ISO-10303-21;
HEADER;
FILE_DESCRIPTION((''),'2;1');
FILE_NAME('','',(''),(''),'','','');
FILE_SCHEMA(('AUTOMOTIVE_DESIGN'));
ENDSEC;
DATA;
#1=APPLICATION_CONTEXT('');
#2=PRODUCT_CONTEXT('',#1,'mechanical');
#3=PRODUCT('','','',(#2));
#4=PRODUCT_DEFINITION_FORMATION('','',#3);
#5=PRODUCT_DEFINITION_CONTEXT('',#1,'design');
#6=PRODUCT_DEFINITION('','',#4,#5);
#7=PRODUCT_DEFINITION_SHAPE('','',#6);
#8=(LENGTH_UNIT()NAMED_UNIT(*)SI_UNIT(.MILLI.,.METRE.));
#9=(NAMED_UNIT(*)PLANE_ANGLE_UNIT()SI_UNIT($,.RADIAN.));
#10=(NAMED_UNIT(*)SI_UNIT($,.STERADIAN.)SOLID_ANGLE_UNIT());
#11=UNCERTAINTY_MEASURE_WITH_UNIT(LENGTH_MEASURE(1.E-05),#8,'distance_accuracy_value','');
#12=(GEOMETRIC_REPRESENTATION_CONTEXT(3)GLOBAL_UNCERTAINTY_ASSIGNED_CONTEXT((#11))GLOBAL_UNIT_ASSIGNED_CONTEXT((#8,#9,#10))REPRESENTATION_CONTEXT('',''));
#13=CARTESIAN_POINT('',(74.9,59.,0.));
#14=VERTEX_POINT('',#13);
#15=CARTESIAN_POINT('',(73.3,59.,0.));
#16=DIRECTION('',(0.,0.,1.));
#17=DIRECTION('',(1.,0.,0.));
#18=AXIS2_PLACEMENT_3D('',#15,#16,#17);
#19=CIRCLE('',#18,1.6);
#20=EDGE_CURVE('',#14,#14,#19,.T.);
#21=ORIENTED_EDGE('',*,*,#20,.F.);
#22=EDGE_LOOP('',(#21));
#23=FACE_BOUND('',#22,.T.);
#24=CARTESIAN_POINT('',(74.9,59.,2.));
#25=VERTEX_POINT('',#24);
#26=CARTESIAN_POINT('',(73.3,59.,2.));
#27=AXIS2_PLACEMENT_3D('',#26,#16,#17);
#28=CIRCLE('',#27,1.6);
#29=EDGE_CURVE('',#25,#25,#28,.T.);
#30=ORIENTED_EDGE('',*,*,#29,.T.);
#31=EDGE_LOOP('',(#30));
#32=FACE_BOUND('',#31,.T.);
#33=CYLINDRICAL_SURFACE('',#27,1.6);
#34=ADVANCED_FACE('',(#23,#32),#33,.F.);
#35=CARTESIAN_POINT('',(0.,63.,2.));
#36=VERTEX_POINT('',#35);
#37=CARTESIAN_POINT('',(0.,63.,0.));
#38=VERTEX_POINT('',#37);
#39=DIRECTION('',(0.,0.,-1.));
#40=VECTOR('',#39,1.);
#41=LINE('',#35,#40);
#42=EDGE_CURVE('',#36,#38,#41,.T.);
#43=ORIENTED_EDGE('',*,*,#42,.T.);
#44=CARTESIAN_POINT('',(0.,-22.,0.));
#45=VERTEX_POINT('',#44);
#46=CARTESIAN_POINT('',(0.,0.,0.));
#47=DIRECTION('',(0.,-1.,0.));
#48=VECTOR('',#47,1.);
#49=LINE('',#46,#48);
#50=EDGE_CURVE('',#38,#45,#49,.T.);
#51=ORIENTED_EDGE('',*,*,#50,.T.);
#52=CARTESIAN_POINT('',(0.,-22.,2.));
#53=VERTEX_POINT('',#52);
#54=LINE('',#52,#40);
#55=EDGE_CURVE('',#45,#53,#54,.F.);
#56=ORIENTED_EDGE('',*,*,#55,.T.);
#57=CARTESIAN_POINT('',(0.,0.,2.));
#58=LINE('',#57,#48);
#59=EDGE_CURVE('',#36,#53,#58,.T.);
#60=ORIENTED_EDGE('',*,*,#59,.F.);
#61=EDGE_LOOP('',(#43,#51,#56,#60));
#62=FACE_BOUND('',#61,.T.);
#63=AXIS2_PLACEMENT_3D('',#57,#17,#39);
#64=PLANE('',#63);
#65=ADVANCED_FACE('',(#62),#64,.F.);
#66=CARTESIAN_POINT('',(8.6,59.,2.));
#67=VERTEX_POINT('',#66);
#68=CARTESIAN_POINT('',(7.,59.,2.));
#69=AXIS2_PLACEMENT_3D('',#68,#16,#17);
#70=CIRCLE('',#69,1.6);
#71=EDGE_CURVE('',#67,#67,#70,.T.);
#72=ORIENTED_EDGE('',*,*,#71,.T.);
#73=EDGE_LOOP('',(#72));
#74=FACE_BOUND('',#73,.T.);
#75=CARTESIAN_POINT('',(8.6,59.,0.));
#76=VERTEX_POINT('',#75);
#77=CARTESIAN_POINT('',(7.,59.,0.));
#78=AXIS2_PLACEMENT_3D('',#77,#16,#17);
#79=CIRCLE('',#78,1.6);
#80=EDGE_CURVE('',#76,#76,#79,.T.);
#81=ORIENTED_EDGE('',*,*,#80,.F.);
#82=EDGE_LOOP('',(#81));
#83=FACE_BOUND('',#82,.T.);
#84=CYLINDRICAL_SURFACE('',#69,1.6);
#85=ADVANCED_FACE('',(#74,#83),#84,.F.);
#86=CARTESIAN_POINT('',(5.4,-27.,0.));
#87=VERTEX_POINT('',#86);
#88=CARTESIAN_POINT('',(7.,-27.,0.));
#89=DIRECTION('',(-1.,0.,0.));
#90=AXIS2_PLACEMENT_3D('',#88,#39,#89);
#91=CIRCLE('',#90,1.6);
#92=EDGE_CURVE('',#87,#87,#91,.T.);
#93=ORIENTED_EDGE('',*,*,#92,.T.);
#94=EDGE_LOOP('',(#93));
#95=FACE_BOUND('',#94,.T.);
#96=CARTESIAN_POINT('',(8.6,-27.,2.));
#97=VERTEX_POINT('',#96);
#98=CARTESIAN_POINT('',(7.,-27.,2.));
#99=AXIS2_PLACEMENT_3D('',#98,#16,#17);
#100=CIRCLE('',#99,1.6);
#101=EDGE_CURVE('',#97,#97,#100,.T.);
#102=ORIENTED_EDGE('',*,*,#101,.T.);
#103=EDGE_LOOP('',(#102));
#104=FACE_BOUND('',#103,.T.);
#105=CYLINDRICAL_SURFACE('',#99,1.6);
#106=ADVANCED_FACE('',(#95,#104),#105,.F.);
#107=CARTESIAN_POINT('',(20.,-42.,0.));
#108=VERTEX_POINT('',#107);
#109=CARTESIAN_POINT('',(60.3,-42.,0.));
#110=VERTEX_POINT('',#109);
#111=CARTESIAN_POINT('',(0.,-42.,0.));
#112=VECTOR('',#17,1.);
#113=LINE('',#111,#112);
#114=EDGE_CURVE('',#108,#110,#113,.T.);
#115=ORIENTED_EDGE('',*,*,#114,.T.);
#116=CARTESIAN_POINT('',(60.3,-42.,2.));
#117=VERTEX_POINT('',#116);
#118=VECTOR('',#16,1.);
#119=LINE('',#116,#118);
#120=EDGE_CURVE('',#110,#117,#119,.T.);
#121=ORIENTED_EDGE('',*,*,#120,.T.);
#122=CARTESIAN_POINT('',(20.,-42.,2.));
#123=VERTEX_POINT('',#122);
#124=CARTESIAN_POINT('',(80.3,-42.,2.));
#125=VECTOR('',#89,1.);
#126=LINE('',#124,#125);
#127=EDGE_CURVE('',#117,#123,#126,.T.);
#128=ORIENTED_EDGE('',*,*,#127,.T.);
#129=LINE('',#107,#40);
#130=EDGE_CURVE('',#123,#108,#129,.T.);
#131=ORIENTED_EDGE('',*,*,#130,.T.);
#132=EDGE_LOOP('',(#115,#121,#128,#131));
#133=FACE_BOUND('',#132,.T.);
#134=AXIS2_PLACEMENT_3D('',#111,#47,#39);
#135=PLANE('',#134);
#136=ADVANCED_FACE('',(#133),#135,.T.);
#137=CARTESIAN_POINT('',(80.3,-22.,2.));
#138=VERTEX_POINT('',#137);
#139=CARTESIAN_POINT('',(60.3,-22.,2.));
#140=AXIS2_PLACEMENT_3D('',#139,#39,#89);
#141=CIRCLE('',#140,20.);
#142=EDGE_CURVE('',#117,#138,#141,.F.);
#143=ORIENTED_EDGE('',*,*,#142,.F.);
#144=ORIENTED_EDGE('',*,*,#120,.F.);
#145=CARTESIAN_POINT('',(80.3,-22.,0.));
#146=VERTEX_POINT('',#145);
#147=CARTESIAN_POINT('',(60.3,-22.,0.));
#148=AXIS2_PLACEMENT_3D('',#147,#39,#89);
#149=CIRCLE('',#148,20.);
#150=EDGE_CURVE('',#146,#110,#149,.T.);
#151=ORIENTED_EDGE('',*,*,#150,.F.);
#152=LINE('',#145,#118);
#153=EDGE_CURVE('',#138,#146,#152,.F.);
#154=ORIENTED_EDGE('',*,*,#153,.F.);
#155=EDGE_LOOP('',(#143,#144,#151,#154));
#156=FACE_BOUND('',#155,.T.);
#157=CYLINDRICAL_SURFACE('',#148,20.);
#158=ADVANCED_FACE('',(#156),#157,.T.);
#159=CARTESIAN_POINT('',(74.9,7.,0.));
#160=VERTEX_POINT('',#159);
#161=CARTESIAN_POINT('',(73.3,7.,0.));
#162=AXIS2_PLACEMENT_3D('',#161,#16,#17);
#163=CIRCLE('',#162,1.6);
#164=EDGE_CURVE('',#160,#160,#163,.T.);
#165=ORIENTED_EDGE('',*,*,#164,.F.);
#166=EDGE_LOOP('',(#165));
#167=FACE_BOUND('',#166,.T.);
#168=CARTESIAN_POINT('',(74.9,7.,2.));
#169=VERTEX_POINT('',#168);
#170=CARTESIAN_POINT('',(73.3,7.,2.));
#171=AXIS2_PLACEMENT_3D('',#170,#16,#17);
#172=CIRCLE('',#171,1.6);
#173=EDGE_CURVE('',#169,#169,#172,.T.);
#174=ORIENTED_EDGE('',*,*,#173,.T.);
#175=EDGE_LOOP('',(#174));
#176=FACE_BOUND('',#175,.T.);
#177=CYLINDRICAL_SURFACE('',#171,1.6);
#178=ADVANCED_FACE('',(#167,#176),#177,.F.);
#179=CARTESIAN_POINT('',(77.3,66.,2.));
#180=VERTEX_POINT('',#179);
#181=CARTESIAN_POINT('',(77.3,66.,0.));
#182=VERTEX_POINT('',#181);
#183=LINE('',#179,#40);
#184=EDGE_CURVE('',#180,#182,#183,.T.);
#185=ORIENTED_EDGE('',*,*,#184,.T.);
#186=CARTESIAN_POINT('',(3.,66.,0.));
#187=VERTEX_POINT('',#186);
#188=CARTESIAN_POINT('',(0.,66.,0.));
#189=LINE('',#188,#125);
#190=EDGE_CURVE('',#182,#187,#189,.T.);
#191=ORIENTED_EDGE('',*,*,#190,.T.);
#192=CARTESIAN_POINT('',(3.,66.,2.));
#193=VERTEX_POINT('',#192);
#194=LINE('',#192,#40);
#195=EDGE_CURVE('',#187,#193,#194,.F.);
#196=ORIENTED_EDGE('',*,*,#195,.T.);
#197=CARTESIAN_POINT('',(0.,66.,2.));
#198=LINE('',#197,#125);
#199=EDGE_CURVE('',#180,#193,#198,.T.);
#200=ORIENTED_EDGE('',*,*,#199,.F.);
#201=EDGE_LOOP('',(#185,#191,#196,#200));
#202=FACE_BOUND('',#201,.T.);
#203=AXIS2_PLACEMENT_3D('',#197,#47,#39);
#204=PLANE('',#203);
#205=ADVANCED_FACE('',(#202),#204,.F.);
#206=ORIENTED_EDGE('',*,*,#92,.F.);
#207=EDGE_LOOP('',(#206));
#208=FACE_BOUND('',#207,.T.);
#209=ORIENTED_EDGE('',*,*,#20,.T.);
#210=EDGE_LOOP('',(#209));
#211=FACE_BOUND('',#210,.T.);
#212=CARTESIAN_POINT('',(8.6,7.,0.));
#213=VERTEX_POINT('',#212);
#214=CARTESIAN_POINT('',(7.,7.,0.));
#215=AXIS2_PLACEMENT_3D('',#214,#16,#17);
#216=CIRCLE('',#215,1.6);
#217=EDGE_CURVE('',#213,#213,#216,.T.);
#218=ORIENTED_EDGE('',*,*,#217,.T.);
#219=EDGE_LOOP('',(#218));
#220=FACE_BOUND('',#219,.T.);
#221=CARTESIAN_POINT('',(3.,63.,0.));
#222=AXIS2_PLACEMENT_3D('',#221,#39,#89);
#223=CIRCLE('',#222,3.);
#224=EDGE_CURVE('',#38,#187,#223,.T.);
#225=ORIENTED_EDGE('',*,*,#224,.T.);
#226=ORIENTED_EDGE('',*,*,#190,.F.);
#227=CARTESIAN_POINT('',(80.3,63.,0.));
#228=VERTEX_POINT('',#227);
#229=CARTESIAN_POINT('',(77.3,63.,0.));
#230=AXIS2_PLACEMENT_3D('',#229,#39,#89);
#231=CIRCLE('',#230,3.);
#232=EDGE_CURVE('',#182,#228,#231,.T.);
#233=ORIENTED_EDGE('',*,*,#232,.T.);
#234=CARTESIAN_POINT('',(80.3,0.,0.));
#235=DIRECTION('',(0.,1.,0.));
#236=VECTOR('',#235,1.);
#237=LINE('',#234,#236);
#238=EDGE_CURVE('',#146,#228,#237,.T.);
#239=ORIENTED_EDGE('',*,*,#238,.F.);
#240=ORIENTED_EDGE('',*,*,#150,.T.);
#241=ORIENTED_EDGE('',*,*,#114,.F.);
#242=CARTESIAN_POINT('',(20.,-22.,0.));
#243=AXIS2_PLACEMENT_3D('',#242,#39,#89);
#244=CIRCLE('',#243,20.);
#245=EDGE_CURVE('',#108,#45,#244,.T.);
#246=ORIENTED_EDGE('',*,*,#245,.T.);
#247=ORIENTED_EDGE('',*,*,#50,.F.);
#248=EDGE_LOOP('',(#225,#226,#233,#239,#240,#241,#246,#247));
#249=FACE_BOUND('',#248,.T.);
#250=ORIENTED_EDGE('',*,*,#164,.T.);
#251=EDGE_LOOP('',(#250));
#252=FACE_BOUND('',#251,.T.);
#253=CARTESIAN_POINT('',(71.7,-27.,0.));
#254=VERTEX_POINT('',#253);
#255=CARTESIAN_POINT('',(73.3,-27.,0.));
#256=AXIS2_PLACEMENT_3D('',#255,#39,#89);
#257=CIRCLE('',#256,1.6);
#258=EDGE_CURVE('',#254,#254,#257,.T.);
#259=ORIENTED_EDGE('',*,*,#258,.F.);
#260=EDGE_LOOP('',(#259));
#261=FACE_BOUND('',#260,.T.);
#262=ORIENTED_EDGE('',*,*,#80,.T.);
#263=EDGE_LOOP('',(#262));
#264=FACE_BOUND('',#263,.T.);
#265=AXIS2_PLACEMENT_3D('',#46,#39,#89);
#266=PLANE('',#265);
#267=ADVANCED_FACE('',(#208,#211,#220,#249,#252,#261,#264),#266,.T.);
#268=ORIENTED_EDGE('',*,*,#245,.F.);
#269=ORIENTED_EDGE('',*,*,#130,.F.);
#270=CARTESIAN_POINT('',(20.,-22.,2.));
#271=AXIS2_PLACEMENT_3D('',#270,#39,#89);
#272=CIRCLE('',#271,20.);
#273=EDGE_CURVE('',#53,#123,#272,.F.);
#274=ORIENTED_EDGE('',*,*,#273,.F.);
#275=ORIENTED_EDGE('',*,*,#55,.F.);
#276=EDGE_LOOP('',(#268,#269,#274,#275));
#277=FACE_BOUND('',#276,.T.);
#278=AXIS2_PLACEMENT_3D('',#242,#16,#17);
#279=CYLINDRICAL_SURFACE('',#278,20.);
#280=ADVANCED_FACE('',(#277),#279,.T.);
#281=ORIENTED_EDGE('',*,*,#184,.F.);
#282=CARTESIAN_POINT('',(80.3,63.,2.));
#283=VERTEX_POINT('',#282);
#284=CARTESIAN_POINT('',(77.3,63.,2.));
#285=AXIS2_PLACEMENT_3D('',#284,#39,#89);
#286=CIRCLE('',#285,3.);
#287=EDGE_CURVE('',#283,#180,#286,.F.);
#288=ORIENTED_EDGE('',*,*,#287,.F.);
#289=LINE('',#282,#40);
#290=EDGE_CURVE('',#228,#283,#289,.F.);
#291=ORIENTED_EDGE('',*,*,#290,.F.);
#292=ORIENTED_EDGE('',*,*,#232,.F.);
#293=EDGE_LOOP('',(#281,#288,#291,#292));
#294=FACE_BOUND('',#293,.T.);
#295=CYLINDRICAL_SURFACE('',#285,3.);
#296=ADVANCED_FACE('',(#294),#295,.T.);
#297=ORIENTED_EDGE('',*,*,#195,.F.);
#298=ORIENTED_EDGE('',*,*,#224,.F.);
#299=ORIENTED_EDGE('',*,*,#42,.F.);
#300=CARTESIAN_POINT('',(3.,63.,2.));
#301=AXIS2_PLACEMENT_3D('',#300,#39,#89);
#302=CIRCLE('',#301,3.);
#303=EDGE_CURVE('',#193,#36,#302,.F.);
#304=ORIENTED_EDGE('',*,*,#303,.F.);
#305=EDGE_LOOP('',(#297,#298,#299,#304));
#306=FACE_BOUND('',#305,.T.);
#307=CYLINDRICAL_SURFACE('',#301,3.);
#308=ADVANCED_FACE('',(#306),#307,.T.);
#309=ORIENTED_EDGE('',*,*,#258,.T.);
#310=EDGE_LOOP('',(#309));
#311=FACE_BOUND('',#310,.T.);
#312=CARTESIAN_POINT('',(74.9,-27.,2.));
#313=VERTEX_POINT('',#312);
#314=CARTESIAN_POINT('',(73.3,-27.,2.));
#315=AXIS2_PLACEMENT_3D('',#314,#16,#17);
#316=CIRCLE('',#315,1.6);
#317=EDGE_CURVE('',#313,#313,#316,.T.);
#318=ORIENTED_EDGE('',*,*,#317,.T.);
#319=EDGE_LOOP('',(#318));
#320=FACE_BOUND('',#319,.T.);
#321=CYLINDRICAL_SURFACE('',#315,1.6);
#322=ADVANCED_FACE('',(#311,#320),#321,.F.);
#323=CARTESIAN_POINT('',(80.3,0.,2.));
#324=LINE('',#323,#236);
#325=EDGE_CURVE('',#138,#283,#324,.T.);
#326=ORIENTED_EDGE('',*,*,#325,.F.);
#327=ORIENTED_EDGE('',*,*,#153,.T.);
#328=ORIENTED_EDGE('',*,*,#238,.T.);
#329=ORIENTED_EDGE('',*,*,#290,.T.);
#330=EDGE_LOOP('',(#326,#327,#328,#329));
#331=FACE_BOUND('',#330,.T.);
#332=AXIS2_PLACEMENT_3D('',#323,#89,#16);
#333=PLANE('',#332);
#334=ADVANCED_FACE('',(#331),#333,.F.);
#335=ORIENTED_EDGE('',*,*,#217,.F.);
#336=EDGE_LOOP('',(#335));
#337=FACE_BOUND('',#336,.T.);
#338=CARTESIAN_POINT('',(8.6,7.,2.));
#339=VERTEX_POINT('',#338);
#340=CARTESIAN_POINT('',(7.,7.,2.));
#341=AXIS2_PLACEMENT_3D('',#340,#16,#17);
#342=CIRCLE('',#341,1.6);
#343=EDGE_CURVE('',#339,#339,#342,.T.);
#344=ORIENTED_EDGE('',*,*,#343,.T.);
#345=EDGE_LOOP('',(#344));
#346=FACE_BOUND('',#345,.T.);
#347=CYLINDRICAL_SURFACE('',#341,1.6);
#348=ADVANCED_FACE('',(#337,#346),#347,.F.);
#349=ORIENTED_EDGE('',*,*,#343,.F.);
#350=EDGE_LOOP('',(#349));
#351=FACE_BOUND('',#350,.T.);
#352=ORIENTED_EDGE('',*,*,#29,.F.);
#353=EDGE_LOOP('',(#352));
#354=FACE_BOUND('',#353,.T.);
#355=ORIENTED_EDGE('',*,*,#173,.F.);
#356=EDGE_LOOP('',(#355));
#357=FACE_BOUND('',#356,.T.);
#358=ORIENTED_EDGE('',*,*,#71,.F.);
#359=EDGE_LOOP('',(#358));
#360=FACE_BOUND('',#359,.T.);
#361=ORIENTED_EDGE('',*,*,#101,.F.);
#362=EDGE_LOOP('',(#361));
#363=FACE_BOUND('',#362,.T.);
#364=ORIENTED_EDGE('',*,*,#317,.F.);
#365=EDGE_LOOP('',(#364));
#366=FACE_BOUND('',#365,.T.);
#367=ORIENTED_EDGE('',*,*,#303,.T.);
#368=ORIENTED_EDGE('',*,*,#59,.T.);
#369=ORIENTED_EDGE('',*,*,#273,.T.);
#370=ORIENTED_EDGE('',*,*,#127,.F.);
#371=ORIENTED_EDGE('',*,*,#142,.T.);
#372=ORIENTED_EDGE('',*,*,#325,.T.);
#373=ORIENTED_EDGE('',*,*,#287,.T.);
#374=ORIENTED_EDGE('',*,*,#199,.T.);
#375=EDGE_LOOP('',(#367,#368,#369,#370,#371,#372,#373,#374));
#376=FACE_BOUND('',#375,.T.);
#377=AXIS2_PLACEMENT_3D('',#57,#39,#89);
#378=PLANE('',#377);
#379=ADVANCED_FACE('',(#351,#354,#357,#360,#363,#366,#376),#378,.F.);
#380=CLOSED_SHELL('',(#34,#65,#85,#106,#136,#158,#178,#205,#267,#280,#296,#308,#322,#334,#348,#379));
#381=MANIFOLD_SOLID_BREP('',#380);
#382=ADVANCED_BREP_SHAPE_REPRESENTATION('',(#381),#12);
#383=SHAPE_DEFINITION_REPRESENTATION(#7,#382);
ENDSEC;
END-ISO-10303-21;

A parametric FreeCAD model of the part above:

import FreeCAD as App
import Part
import Sketcher
from FreeCAD import Vector
Q = App.Units.Quantity


def edges_at(feature, points):
    """Names of the edges that pass closest to the given points."""
    edges = feature.Shape.Edges
    near = lambda p: min(range(len(edges)), key=lambda i: edges[i].distToShape(Part.Vertex(*p))[0])
    return sorted({f"Edge{near(p) + 1}" for p in points})

doc = App.newDocument("Part")
body = doc.addObject("PartDesign::Body", "Body")

# Sketch on XY plane
sketch1 = doc.addObject("Sketcher::SketchObject", "Sketch")
body.addObject(sketch1)
sketch1.AttachmentSupport = (doc.XY_Plane, [""])
sketch1.MapMode = "FlatFace"
sketch1.addGeometry([
    Part.LineSegment(Vector(0, 66, 0), Vector(0, 0, 0)),
    Part.LineSegment(Vector(0, 0, 0), Vector(80, 0, 0)),
    Part.LineSegment(Vector(80, 0, 0), Vector(80, 66, 0)),
    Part.LineSegment(Vector(80, 66, 0), Vector(0, 66, 0)),
], False)
sketch1.addConstraint([
    Sketcher.Constraint("Coincident", 0, 2, 1, 1),
    Sketcher.Constraint("Coincident", 1, 2, 2, 1),
    Sketcher.Constraint("Coincident", 2, 2, 3, 1),
    Sketcher.Constraint("Coincident", 3, 2, 0, 1),
    Sketcher.Constraint("Vertical", 0),
    Sketcher.Constraint("Horizontal", 1),
    Sketcher.Constraint("Vertical", 2),
    Sketcher.Constraint("Horizontal", 3),
    Sketcher.Constraint("Coincident", 0, 2, -1, 1),
    Sketcher.Constraint("DistanceY", 0, 2, 0, 1, Q("66 mm")),
    Sketcher.Constraint("DistanceX", 1, 1, 1, 2, Q("80.3 mm")),
])
pad1 = doc.addObject("PartDesign::Pad", "Pad")
body.addObject(pad1)
pad1.Profile = sketch1
pad1.Length = 2

# Sketch on XY plane
sketch2 = doc.addObject("Sketcher::SketchObject", "Sketch001")
body.addObject(sketch2)
sketch2.AttachmentSupport = (doc.XY_Plane, [""])
sketch2.MapMode = "FlatFace"
sketch2.AttachmentOffset = App.Placement(Vector(0, 0, 2), App.Rotation())
sketch2.addGeometry([
    Part.Circle(Vector(7, 59, 0), Vector(0, 0, 1), 1.6),
    Part.Circle(Vector(73.3, 59, 0), Vector(0, 0, 1), 1.6),
    Part.Circle(Vector(73.3, 7, 0), Vector(0, 0, 1), 1.6),
    Part.Circle(Vector(7, 7, 0), Vector(0, 0, 1), 1.6),
], False)
sketch2.addConstraint([
    Sketcher.Constraint("Equal", 0, 1),
    Sketcher.Constraint("Equal", 1, 2),
    Sketcher.Constraint("Equal", 2, 3),
    Sketcher.Constraint("Horizontal", 0, 3, 1, 3),
    Sketcher.Constraint("Horizontal", 2, 3, 3, 3),
    Sketcher.Constraint("Vertical", 1, 3, 2, 3),
    Sketcher.Constraint("Vertical", 0, 3, 3, 3),
    Sketcher.Constraint("Diameter", 0, Q("3.2 mm")),
    Sketcher.Constraint("DistanceX", -1, 1, 0, 3, Q("7 mm")),
    Sketcher.Constraint("DistanceY", -1, 1, 0, 3, Q("59 mm")),
    Sketcher.Constraint("DistanceY", -1, 1, 2, 3, Q("7 mm")),
    Sketcher.Constraint("DistanceX", -1, 1, 1, 3, Q("73.3 mm")),
])
doc.recompute()
hole = doc.addObject("PartDesign::Hole", "Hole")
body.addObject(hole)
hole.Profile = sketch2
hole.ThreadType = "None"
hole.Diameter = 3.2
hole.DepthType = "ThroughAll"
doc.recompute()

fillet = doc.addObject("PartDesign::Fillet", "Fillet")
body.addObject(fillet)
fillet.Base = (hole, edges_at(hole, [(0, 66, 1), (80.3, 66, 1)]))
fillet.Radius = 3

# Sketch on XZ plane
sketch3 = doc.addObject("Sketcher::SketchObject", "Sketch002")
body.addObject(sketch3)
sketch3.AttachmentSupport = (doc.XZ_Plane, [""])
sketch3.MapMode = "FlatFace"
sketch3.addGeometry([
    Part.LineSegment(Vector(0, 2, 0), Vector(0, 0, 0)),
    Part.LineSegment(Vector(0, 0, 0), Vector(80.3, 0, 0)),
    Part.LineSegment(Vector(80.3, 0, 0), Vector(80.3, 2, 0)),
    Part.LineSegment(Vector(80.3, 2, 0), Vector(0, 2, 0)),
], False)
sketch3.addConstraint([
    Sketcher.Constraint("Coincident", 0, 2, 1, 1),
    Sketcher.Constraint("Coincident", 1, 2, 2, 1),
    Sketcher.Constraint("Coincident", 2, 2, 3, 1),
    Sketcher.Constraint("Coincident", 3, 2, 0, 1),
    Sketcher.Constraint("Vertical", 0),
    Sketcher.Constraint("Horizontal", 1),
    Sketcher.Constraint("Vertical", 2),
    Sketcher.Constraint("Horizontal", 3),
    Sketcher.Constraint("Coincident", 0, 2, -1, 1),
    Sketcher.Constraint("DistanceY", 0, 2, 0, 1, Q("2 mm")),
    Sketcher.Constraint("DistanceX", 1, 1, 1, 2, Q("80.3 mm")),
])
pad2 = doc.addObject("PartDesign::Pad", "Pad001")
body.addObject(pad2)
pad2.Profile = sketch3
pad2.Length = 42
doc.recompute()

fillet2 = doc.addObject("PartDesign::Fillet", "Fillet001")
body.addObject(fillet2)
fillet2.Base = (pad2, edges_at(pad2, [(0, -42, 1), (80.3, -42, 1)]))
fillet2.Radius = 20

# Sketch on XY plane
sketch4 = doc.addObject("Sketcher::SketchObject", "Sketch003")
body.addObject(sketch4)
sketch4.AttachmentSupport = (doc.XY_Plane, [""])
sketch4.MapMode = "FlatFace"
sketch4.AttachmentOffset = App.Placement(Vector(0, 0, 2), App.Rotation())
sketch4.addGeometry([
    Part.Circle(Vector(7, -27, 0), Vector(0, 0, 1), 1.6),
    Part.Circle(Vector(73.3, -27, 0), Vector(0, 0, 1), 1.6),
], False)
sketch4.addConstraint([
    Sketcher.Constraint("Equal", 0, 1),
    Sketcher.Constraint("Horizontal", 0, 3, 1, 3),
    Sketcher.Constraint("Diameter", 0, Q("3.2 mm")),
    Sketcher.Constraint("DistanceX", -1, 1, 0, 3, Q("7 mm")),
    Sketcher.Constraint("DistanceY", 0, 3, -1, 1, Q("27 mm")),
    Sketcher.Constraint("DistanceX", -1, 1, 1, 3, Q("73.3 mm")),
])
doc.recompute()
hole2 = doc.addObject("PartDesign::Hole", "Hole001")
body.addObject(hole2)
hole2.Profile = sketch4
hole2.ThreadType = "None"
hole2.Diameter = 3.2
hole2.DepthType = "Dimension"
hole2.Depth = 60
hole2.DrillPoint = "Angled"
hole2.DrillPointAngle = 118

doc.recompute()
